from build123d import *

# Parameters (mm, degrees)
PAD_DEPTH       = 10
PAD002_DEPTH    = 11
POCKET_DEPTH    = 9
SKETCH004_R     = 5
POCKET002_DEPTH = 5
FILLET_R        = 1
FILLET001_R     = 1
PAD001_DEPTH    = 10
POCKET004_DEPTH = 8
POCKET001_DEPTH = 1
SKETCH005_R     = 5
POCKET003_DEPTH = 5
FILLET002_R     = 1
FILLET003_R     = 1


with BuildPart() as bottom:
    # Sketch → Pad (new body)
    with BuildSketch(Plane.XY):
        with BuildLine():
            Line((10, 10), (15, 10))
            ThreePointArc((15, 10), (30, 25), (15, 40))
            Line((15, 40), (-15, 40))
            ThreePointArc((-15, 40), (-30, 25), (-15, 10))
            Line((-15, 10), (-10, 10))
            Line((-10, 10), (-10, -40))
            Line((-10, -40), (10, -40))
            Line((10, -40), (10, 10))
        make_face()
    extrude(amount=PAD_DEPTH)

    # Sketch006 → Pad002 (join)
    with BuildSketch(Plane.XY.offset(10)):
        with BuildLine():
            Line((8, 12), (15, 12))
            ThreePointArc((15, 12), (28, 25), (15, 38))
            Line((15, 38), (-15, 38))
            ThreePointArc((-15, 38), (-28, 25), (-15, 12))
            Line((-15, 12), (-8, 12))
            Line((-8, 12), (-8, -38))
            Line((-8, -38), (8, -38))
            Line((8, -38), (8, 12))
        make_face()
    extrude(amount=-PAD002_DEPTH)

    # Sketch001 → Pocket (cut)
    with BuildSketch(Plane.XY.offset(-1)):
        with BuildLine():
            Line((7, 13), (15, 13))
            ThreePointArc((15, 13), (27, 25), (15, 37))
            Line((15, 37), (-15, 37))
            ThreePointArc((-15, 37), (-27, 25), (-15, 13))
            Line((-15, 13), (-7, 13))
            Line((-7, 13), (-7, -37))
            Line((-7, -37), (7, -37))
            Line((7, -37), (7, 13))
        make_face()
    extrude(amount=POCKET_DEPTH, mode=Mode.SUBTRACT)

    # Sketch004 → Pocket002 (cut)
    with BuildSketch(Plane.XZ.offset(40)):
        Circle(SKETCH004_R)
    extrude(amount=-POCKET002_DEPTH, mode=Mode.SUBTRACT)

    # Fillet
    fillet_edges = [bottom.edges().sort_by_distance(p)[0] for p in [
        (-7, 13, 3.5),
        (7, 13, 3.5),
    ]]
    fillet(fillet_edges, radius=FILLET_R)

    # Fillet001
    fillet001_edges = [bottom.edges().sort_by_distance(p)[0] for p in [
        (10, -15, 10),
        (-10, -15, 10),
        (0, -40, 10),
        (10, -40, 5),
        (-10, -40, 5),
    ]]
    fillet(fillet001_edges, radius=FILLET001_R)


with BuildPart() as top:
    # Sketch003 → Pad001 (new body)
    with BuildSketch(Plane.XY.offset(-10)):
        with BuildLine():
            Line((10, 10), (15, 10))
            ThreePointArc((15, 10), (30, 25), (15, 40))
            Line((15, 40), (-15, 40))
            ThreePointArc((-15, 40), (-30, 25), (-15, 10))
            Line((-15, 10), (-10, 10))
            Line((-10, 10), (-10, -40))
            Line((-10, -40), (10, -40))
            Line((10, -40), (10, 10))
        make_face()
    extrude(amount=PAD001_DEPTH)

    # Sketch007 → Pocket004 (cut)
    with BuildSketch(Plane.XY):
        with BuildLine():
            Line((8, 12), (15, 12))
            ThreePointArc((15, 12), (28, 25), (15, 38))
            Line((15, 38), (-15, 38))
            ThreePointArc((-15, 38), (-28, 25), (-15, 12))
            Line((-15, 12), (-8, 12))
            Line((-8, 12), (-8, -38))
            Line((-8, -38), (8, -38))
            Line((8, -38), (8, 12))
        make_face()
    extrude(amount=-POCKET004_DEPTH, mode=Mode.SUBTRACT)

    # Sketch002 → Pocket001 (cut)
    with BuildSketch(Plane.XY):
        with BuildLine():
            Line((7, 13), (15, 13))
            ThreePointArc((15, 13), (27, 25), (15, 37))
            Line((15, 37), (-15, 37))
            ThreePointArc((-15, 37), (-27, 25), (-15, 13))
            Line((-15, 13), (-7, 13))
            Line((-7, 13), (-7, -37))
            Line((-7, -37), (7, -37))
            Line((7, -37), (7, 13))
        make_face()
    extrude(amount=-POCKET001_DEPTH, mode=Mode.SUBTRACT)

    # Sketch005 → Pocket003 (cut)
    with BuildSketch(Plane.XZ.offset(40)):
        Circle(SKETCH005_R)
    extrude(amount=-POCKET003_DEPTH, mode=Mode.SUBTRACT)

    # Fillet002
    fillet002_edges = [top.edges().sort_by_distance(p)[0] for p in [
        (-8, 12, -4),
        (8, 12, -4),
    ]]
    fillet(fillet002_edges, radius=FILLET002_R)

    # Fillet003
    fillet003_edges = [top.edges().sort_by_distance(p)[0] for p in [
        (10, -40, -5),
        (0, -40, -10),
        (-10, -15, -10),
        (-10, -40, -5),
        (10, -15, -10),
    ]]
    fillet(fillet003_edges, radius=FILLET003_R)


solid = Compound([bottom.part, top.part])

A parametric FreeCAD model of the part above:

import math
import FreeCAD as App
import Part
import Sketcher

V = App.Vector
Q = App.Units.Quantity


def edges_at(feature, points):
    """Names of the edges that pass closest to the given points."""
    edges = feature.Shape.Edges
    near = lambda p: min(range(len(edges)), key=lambda i: edges[i].distToShape(Part.Vertex(*p))[0])
    return sorted({f"Edge{near(p) + 1}" for p in points})

doc = App.newDocument("Part")
body = doc.addObject("PartDesign::Body", "Body")

# Sketch on XY plane
sketch1 = body.newObject("Sketcher::SketchObject", "Sketch")
sketch1.AttachmentSupport = (doc.getObject("XY_Plane"), [""])
sketch1.MapMode = "FlatFace"
sketch1.addGeometry(Part.LineSegment(V(10, 10, 0), V(15, 10, 0)), False)
sketch1.addGeometry(Part.ArcOfCircle(Part.Circle(V(15, 25, 0), V(0, 0, 1), 15), math.radians(-90), math.radians(90)), False)
sketch1.addGeometry(Part.LineSegment(V(15, 40, 0), V(-15, 40, 0)), False)
sketch1.addGeometry(Part.ArcOfCircle(Part.Circle(V(-15, 25, 0), V(0, 0, 1), 15), math.radians(90), math.radians(270)), False)
sketch1.addGeometry(Part.LineSegment(V(-15, 10, 0), V(-10, 10, 0)), False)
sketch1.addGeometry(Part.LineSegment(V(-10, 10, 0), V(-10, -40, 0)), False)
sketch1.addGeometry(Part.LineSegment(V(-10, -40, 0), V(10, -40, 0)), False)
sketch1.addGeometry(Part.LineSegment(V(10, -40, 0), V(10, 10, 0)), False)
sketch1.addConstraint(Sketcher.Constraint("Tangent", 0, 2, 1, 1))
sketch1.addConstraint(Sketcher.Constraint("Tangent", 1, 2, 2, 1))
sketch1.addConstraint(Sketcher.Constraint("Tangent", 2, 2, 3, 1))
sketch1.addConstraint(Sketcher.Constraint("Tangent", 3, 2, 4, 1))
sketch1.addConstraint(Sketcher.Constraint("Coincident", 4, 2, 5, 1))
sketch1.addConstraint(Sketcher.Constraint("Coincident", 5, 2, 6, 1))
sketch1.addConstraint(Sketcher.Constraint("Coincident", 6, 2, 7, 1))
sketch1.addConstraint(Sketcher.Constraint("Coincident", 7, 2, 0, 1))
sketch1.addConstraint(Sketcher.Constraint("Horizontal", 0))
sketch1.addConstraint(Sketcher.Constraint("Horizontal", 2))
sketch1.addConstraint(Sketcher.Constraint("Horizontal", 4))
sketch1.addConstraint(Sketcher.Constraint("Vertical", 5))
sketch1.addConstraint(Sketcher.Constraint("Horizontal", 6))
sketch1.addConstraint(Sketcher.Constraint("Vertical", 7))
sketch1.addConstraint(Sketcher.Constraint("Equal", 1, 3))
sketch1.addConstraint(Sketcher.Constraint("Equal", 0, 4))
sketch1.addConstraint(Sketcher.Constraint("Radius", 1, Q("15 mm")))
sketch1.addConstraint(Sketcher.Constraint("DistanceX", 0, 1, 0, 2, Q("5 mm")))
sketch1.addConstraint(Sketcher.Constraint("DistanceX", 2, 2, 2, 1, Q("30 mm")))
sketch1.addConstraint(Sketcher.Constraint("DistanceY", 5, 2, 5, 1, Q("50 mm")))
sketch1.addConstraint(Sketcher.Constraint("DistanceX", -1, 1, 1, 3, Q("15 mm")))
sketch1.addConstraint(Sketcher.Constraint("DistanceY", -1, 1, 1, 3, Q("25 mm")))
pad1 = body.newObject("PartDesign::Pad", "Pad")
pad1.Profile = sketch1
pad1.Length = 10

# Sketch on XY plane
sketch2 = body.newObject("Sketcher::SketchObject", "Sketch001")
sketch2.AttachmentSupport = (doc.getObject("XY_Plane"), [""])
sketch2.MapMode = "FlatFace"
sketch2.AttachmentOffset = App.Placement(V(0, 0, 10), App.Rotation())
sketch2.addGeometry(Part.LineSegment(V(8, 12, 0), V(15, 12, 0)), False)
sketch2.addGeometry(Part.ArcOfCircle(Part.Circle(V(15, 25, 0), V(0, 0, 1), 13), math.radians(-90), math.radians(90)), False)
sketch2.addGeometry(Part.LineSegment(V(15, 38, 0), V(-15, 38, 0)), False)
sketch2.addGeometry(Part.ArcOfCircle(Part.Circle(V(-15, 25, 0), V(0, 0, 1), 13), math.radians(90), math.radians(270)), False)
sketch2.addGeometry(Part.LineSegment(V(-15, 12, 0), V(-8, 12, 0)), False)
sketch2.addGeometry(Part.LineSegment(V(-8, 12, 0), V(-8, -38, 0)), False)
sketch2.addGeometry(Part.LineSegment(V(-8, -38, 0), V(8, -38, 0)), False)
sketch2.addGeometry(Part.LineSegment(V(8, -38, 0), V(8, 12, 0)), False)
sketch2.addConstraint(Sketcher.Constraint("Tangent", 0, 2, 1, 1))
sketch2.addConstraint(Sketcher.Constraint("Tangent", 1, 2, 2, 1))
sketch2.addConstraint(Sketcher.Constraint("Tangent", 2, 2, 3, 1))
sketch2.addConstraint(Sketcher.Constraint("Tangent", 3, 2, 4, 1))
sketch2.addConstraint(Sketcher.Constraint("Coincident", 4, 2, 5, 1))
sketch2.addConstraint(Sketcher.Constraint("Coincident", 5, 2, 6, 1))
sketch2.addConstraint(Sketcher.Constraint("Coincident", 6, 2, 7, 1))
sketch2.addConstraint(Sketcher.Constraint("Coincident", 7, 2, 0, 1))
sketch2.addConstraint(Sketcher.Constraint("Horizontal", 0))
sketch2.addConstraint(Sketcher.Constraint("Horizontal", 2))
sketch2.addConstraint(Sketcher.Constraint("Horizontal", 4))
sketch2.addConstraint(Sketcher.Constraint("Vertical", 5))
sketch2.addConstraint(Sketcher.Constraint("Horizontal", 6))
sketch2.addConstraint(Sketcher.Constraint("Vertical", 7))
sketch2.addConstraint(Sketcher.Constraint("Equal", 1, 3))
sketch2.addConstraint(Sketcher.Constraint("Equal", 0, 4))
sketch2.addConstraint(Sketcher.Constraint("Radius", 1, Q("13 mm")))
sketch2.addConstraint(Sketcher.Constraint("DistanceX", 0, 1, 0, 2, Q("7 mm")))
sketch2.addConstraint(Sketcher.Constraint("DistanceX", 2, 2, 2, 1, Q("30 mm")))
sketch2.addConstraint(Sketcher.Constraint("DistanceY", 5, 2, 5, 1, Q("50 mm")))
sketch2.addConstraint(Sketcher.Constraint("DistanceX", -1, 1, 1, 3, Q("15 mm")))
sketch2.addConstraint(Sketcher.Constraint("DistanceY", -1, 1, 1, 3, Q("25 mm")))
pad2 = body.newObject("PartDesign::Pad", "Pad001")
pad2.Profile = sketch2
pad2.Length = 11
pad2.Reversed = True

# Sketch on XY plane
sketch3 = body.newObject("Sketcher::SketchObject", "Sketch002")
sketch3.AttachmentSupport = (doc.getObject("XY_Plane"), [""])
sketch3.MapMode = "FlatFace"
sketch3.AttachmentOffset = App.Placement(V(0, 0, -1), App.Rotation())
sketch3.addGeometry(Part.LineSegment(V(7, 13, 0), V(15, 13, 0)), False)
sketch3.addGeometry(Part.ArcOfCircle(Part.Circle(V(15, 25, 0), V(0, 0, 1), 12), math.radians(-90), math.radians(90)), False)
sketch3.addGeometry(Part.LineSegment(V(15, 37, 0), V(-15, 37, 0)), False)
sketch3.addGeometry(Part.ArcOfCircle(Part.Circle(V(-15, 25, 0), V(0, 0, 1), 12), math.radians(90), math.radians(270)), False)
sketch3.addGeometry(Part.LineSegment(V(-15, 13, 0), V(-7, 13, 0)), False)
sketch3.addGeometry(Part.LineSegment(V(-7, 13, 0), V(-7, -37, 0)), False)
sketch3.addGeometry(Part.LineSegment(V(-7, -37, 0), V(7, -37, 0)), False)
sketch3.addGeometry(Part.LineSegment(V(7, -37, 0), V(7, 13, 0)), False)
sketch3.addConstraint(Sketcher.Constraint("Tangent", 0, 2, 1, 1))
sketch3.addConstraint(Sketcher.Constraint("Tangent", 1, 2, 2, 1))
sketch3.addConstraint(Sketcher.Constraint("Tangent", 2, 2, 3, 1))
sketch3.addConstraint(Sketcher.Constraint("Tangent", 3, 2, 4, 1))
sketch3.addConstraint(Sketcher.Constraint("Coincident", 4, 2, 5, 1))
sketch3.addConstraint(Sketcher.Constraint("Coincident", 5, 2, 6, 1))
sketch3.addConstraint(Sketcher.Constraint("Coincident", 6, 2, 7, 1))
sketch3.addConstraint(Sketcher.Constraint("Coincident", 7, 2, 0, 1))
sketch3.addConstraint(Sketcher.Constraint("Horizontal", 0))
sketch3.addConstraint(Sketcher.Constraint("Horizontal", 2))
sketch3.addConstraint(Sketcher.Constraint("Horizontal", 4))
sketch3.addConstraint(Sketcher.Constraint("Vertical", 5))
sketch3.addConstraint(Sketcher.Constraint("Horizontal", 6))
sketch3.addConstraint(Sketcher.Constraint("Vertical", 7))
sketch3.addConstraint(Sketcher.Constraint("Equal", 1, 3))
sketch3.addConstraint(Sketcher.Constraint("Equal", 0, 4))
sketch3.addConstraint(Sketcher.Constraint("Radius", 1, Q("12 mm")))
sketch3.addConstraint(Sketcher.Constraint("DistanceX", 0, 1, 0, 2, Q("8 mm")))
sketch3.addConstraint(Sketcher.Constraint("DistanceX", 2, 2, 2, 1, Q("30 mm")))
sketch3.addConstraint(Sketcher.Constraint("DistanceY", 5, 2, 5, 1, Q("50 mm")))
sketch3.addConstraint(Sketcher.Constraint("DistanceX", -1, 1, 1, 3, Q("15 mm")))
sketch3.addConstraint(Sketcher.Constraint("DistanceY", -1, 1, 1, 3, Q("25 mm")))
pocket1 = body.newObject("PartDesign::Pocket", "Pocket")
pocket1.Profile = sketch3
pocket1.Length = 9
pocket1.Reversed = True

# Sketch on XZ plane
sketch4 = body.newObject("Sketcher::SketchObject", "Sketch003")
sketch4.AttachmentSupport = (doc.getObject("XZ_Plane"), [""])
sketch4.MapMode = "FlatFace"
sketch4.AttachmentOffset = App.Placement(V(0, 0, 40), App.Rotation())
sketch4.addGeometry(Part.Circle(V(0, 0, 0), V(0, 0, 1), 5), False)
sketch4.addConstraint(Sketcher.Constraint("Coincident", 0, 3, -1, 1))
sketch4.addConstraint(Sketcher.Constraint("Diameter", 0, Q("10 mm")))
pocket2 = body.newObject("PartDesign::Pocket", "Pocket001")
pocket2.Profile = sketch4
pocket2.Length = 5
doc.recompute()

fillet = body.newObject("PartDesign::Fillet", "Fillet")
fillet.Base = (pocket2, edges_at(pocket2, [(-7, 13, 3.5), (7, 13, 3.5)]))
fillet.Radius = 1
doc.recompute()

fillet2 = body.newObject("PartDesign::Fillet", "Fillet001")
fillet2.Base = (fillet, edges_at(fillet, [
    (10, -15, 10),
    (-10, -15, 10),
    (0, -40, 10),
    (10, -40, 5),
    (-10, -40, 5),
]))
fillet2.Radius = 1
body2 = doc.addObject("PartDesign::Body", "Body001")

# Sketch on XY plane
sketch5 = body2.newObject("Sketcher::SketchObject", "Sketch004")
sketch5.AttachmentSupport = (doc.getObject("XY_Plane001"), [""])
sketch5.MapMode = "FlatFace"
sketch5.AttachmentOffset = App.Placement(V(0, 0, -10), App.Rotation())
sketch5.addGeometry(Part.LineSegment(V(10, 10, 0), V(15, 10, 0)), False)
sketch5.addGeometry(Part.ArcOfCircle(Part.Circle(V(15, 25, 0), V(0, 0, 1), 15), math.radians(-90), math.radians(90)), False)
sketch5.addGeometry(Part.LineSegment(V(15, 40, 0), V(-15, 40, 0)), False)
sketch5.addGeometry(Part.ArcOfCircle(Part.Circle(V(-15, 25, 0), V(0, 0, 1), 15), math.radians(90), math.radians(270)), False)
sketch5.addGeometry(Part.LineSegment(V(-15, 10, 0), V(-10, 10, 0)), False)
sketch5.addGeometry(Part.LineSegment(V(-10, 10, 0), V(-10, -40, 0)), False)
sketch5.addGeometry(Part.LineSegment(V(-10, -40, 0), V(10, -40, 0)), False)
sketch5.addGeometry(Part.LineSegment(V(10, -40, 0), V(10, 10, 0)), False)
sketch5.addConstraint(Sketcher.Constraint("Tangent", 0, 2, 1, 1))
sketch5.addConstraint(Sketcher.Constraint("Tangent", 1, 2, 2, 1))
sketch5.addConstraint(Sketcher.Constraint("Tangent", 2, 2, 3, 1))
sketch5.addConstraint(Sketcher.Constraint("Tangent", 3, 2, 4, 1))
sketch5.addConstraint(Sketcher.Constraint("Coincident", 4, 2, 5, 1))
sketch5.addConstraint(Sketcher.Constraint("Coincident", 5, 2, 6, 1))
sketch5.addConstraint(Sketcher.Constraint("Coincident", 6, 2, 7, 1))
sketch5.addConstraint(Sketcher.Constraint("Coincident", 7, 2, 0, 1))
sketch5.addConstraint(Sketcher.Constraint("Horizontal", 0))
sketch5.addConstraint(Sketcher.Constraint("Horizontal", 2))
sketch5.addConstraint(Sketcher.Constraint("Horizontal", 4))
sketch5.addConstraint(Sketcher.Constraint("Vertical", 5))
sketch5.addConstraint(Sketcher.Constraint("Horizontal", 6))
sketch5.addConstraint(Sketcher.Constraint("Vertical", 7))
sketch5.addConstraint(Sketcher.Constraint("Equal", 1, 3))
sketch5.addConstraint(Sketcher.Constraint("Equal", 0, 4))
sketch5.addConstraint(Sketcher.Constraint("Radius", 1, Q("15 mm")))
sketch5.addConstraint(Sketcher.Constraint("DistanceX", 0, 1, 0, 2, Q("5 mm")))
sketch5.addConstraint(Sketcher.Constraint("DistanceX", 2, 2, 2, 1, Q("30 mm")))
sketch5.addConstraint(Sketcher.Constraint("DistanceY", 5, 2, 5, 1, Q("50 mm")))
sketch5.addConstraint(Sketcher.Constraint("DistanceX", -1, 1, 1, 3, Q("15 mm")))
sketch5.addConstraint(Sketcher.Constraint("DistanceY", -1, 1, 1, 3, Q("25 mm")))
pad3 = body2.newObject("PartDesign::Pad", "Pad002")
pad3.Profile = sketch5
pad3.Length = 10

# Sketch on XY plane
sketch6 = body2.newObject("Sketcher::SketchObject", "Sketch005")
sketch6.AttachmentSupport = (doc.getObject("XY_Plane001"), [""])
sketch6.MapMode = "FlatFace"
sketch6.addGeometry(Part.LineSegment(V(8, 12, 0), V(15, 12, 0)), False)
sketch6.addGeometry(Part.ArcOfCircle(Part.Circle(V(15, 25, 0), V(0, 0, 1), 13), math.radians(-90), math.radians(90)), False)
sketch6.addGeometry(Part.LineSegment(V(15, 38, 0), V(-15, 38, 0)), False)
sketch6.addGeometry(Part.ArcOfCircle(Part.Circle(V(-15, 25, 0), V(0, 0, 1), 13), math.radians(90), math.radians(270)), False)
sketch6.addGeometry(Part.LineSegment(V(-15, 12, 0), V(-8, 12, 0)), False)
sketch6.addGeometry(Part.LineSegment(V(-8, 12, 0), V(-8, -38, 0)), False)
sketch6.addGeometry(Part.LineSegment(V(-8, -38, 0), V(8, -38, 0)), False)
sketch6.addGeometry(Part.LineSegment(V(8, -38, 0), V(8, 12, 0)), False)
sketch6.addConstraint(Sketcher.Constraint("Tangent", 0, 2, 1, 1))
sketch6.addConstraint(Sketcher.Constraint("Tangent", 1, 2, 2, 1))
sketch6.addConstraint(Sketcher.Constraint("Tangent", 2, 2, 3, 1))
sketch6.addConstraint(Sketcher.Constraint("Tangent", 3, 2, 4, 1))
sketch6.addConstraint(Sketcher.Constraint("Coincident", 4, 2, 5, 1))
sketch6.addConstraint(Sketcher.Constraint("Coincident", 5, 2, 6, 1))
sketch6.addConstraint(Sketcher.Constraint("Coincident", 6, 2, 7, 1))
sketch6.addConstraint(Sketcher.Constraint("Coincident", 7, 2, 0, 1))
sketch6.addConstraint(Sketcher.Constraint("Horizontal", 0))
sketch6.addConstraint(Sketcher.Constraint("Horizontal", 2))
sketch6.addConstraint(Sketcher.Constraint("Horizontal", 4))
sketch6.addConstraint(Sketcher.Constraint("Vertical", 5))
sketch6.addConstraint(Sketcher.Constraint("Horizontal", 6))
sketch6.addConstraint(Sketcher.Constraint("Vertical", 7))
sketch6.addConstraint(Sketcher.Constraint("Equal", 1, 3))
sketch6.addConstraint(Sketcher.Constraint("Equal", 0, 4))
sketch6.addConstraint(Sketcher.Constraint("Radius", 1, Q("13 mm")))
sketch6.addConstraint(Sketcher.Constraint("DistanceX", 0, 1, 0, 2, Q("7 mm")))
sketch6.addConstraint(Sketcher.Constraint("DistanceX", 2, 2, 2, 1, Q("30 mm")))
sketch6.addConstraint(Sketcher.Constraint("DistanceY", 5, 2, 5, 1, Q("50 mm")))
sketch6.addConstraint(Sketcher.Constraint("DistanceX", -1, 1, 1, 3, Q("15 mm")))
sketch6.addConstraint(Sketcher.Constraint("DistanceY", -1, 1, 1, 3, Q("25 mm")))
pocket3 = body2.newObject("PartDesign::Pocket", "Pocket002")
pocket3.Profile = sketch6
pocket3.Length = 8

# Sketch on XY plane
sketch7 = body2.newObject("Sketcher::SketchObject", "Sketch006")
sketch7.AttachmentSupport = (doc.getObject("XY_Plane001"), [""])
sketch7.MapMode = "FlatFace"
sketch7.addGeometry(Part.LineSegment(V(7, 13, 0), V(15, 13, 0)), False)
sketch7.addGeometry(Part.ArcOfCircle(Part.Circle(V(15, 25, 0), V(0, 0, 1), 12), math.radians(-90), math.radians(90)), False)
sketch7.addGeometry(Part.LineSegment(V(15, 37, 0), V(-15, 37, 0)), False)
sketch7.addGeometry(Part.ArcOfCircle(Part.Circle(V(-15, 25, 0), V(0, 0, 1), 12), math.radians(90), math.radians(270)), False)
sketch7.addGeometry(Part.LineSegment(V(-15, 13, 0), V(-7, 13, 0)), False)
sketch7.addGeometry(Part.LineSegment(V(-7, 13, 0), V(-7, -37, 0)), False)
sketch7.addGeometry(Part.LineSegment(V(-7, -37, 0), V(7, -37, 0)), False)
sketch7.addGeometry(Part.LineSegment(V(7, -37, 0), V(7, 13, 0)), False)
sketch7.addConstraint(Sketcher.Constraint("Tangent", 0, 2, 1, 1))
sketch7.addConstraint(Sketcher.Constraint("Tangent", 1, 2, 2, 1))
sketch7.addConstraint(Sketcher.Constraint("Tangent", 2, 2, 3, 1))
sketch7.addConstraint(Sketcher.Constraint("Tangent", 3, 2, 4, 1))
sketch7.addConstraint(Sketcher.Constraint("Coincident", 4, 2, 5, 1))
sketch7.addConstraint(Sketcher.Constraint("Coincident", 5, 2, 6, 1))
sketch7.addConstraint(Sketcher.Constraint("Coincident", 6, 2, 7, 1))
sketch7.addConstraint(Sketcher.Constraint("Coincident", 7, 2, 0, 1))
sketch7.addConstraint(Sketcher.Constraint("Horizontal", 0))
sketch7.addConstraint(Sketcher.Constraint("Horizontal", 2))
sketch7.addConstraint(Sketcher.Constraint("Horizontal", 4))
sketch7.addConstraint(Sketcher.Constraint("Vertical", 5))
sketch7.addConstraint(Sketcher.Constraint("Horizontal", 6))
sketch7.addConstraint(Sketcher.Constraint("Vertical", 7))
sketch7.addConstraint(Sketcher.Constraint("Equal", 1, 3))
sketch7.addConstraint(Sketcher.Constraint("Equal", 0, 4))
sketch7.addConstraint(Sketcher.Constraint("Radius", 1, Q("12 mm")))
sketch7.addConstraint(Sketcher.Constraint("DistanceX", 0, 1, 0, 2, Q("8 mm")))
sketch7.addConstraint(Sketcher.Constraint("DistanceX", 2, 2, 2, 1, Q("30 mm")))
sketch7.addConstraint(Sketcher.Constraint("DistanceY", 5, 2, 5, 1, Q("50 mm")))
sketch7.addConstraint(Sketcher.Constraint("DistanceX", -1, 1, 1, 3, Q("15 mm")))
sketch7.addConstraint(Sketcher.Constraint("DistanceY", -1, 1, 1, 3, Q("25 mm")))
pocket4 = body2.newObject("PartDesign::Pocket", "Pocket003")
pocket4.Profile = sketch7
pocket4.Length = 1

# Sketch on XZ plane
sketch8 = body2.newObject("Sketcher::SketchObject", "Sketch007")
sketch8.AttachmentSupport = (doc.getObject("XZ_Plane001"), [""])
sketch8.MapMode = "FlatFace"
sketch8.AttachmentOffset = App.Placement(V(0, 0, 40), App.Rotation())
sketch8.addGeometry(Part.Circle(V(0, 0, 0), V(0, 0, 1), 5), False)
sketch8.addConstraint(Sketcher.Constraint("Coincident", 0, 3, -1, 1))
sketch8.addConstraint(Sketcher.Constraint("Diameter", 0, Q("10 mm")))
pocket5 = body2.newObject("PartDesign::Pocket", "Pocket004")
pocket5.Profile = sketch8
pocket5.Length = 5
doc.recompute()

fillet3 = body2.newObject("PartDesign::Fillet", "Fillet002")
fillet3.Base = (pocket5, edges_at(pocket5, [(-8, 12, -4), (8, 12, -4)]))
fillet3.Radius = 1
doc.recompute()

fillet4 = body2.newObject("PartDesign::Fillet", "Fillet003")
fillet4.Base = (fillet3, edges_at(fillet3, [
    (10, -40, -5),
    (0, -40, -10),
    (-10, -15, -10),
    (-10, -40, -5),
    (10, -15, -10),
]))
fillet4.Radius = 1

doc.recompute()
